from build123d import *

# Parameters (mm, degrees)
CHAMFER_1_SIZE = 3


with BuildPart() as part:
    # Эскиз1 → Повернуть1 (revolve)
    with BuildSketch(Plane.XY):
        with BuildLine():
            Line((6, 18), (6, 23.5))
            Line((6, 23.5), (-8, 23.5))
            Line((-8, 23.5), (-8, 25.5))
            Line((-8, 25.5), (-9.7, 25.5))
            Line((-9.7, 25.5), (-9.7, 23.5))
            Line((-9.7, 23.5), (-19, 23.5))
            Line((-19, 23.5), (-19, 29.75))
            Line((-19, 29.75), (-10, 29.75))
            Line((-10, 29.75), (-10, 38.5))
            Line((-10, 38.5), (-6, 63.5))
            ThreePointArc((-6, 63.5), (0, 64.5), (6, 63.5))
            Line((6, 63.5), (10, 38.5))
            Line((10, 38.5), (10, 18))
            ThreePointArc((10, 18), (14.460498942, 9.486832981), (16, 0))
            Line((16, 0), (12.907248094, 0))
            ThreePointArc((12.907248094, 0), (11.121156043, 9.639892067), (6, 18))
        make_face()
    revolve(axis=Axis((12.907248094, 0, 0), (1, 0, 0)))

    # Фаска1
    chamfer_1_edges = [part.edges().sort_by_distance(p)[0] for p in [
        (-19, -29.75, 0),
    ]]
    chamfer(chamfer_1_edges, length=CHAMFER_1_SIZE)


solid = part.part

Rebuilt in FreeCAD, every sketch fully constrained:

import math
import FreeCAD as App
import Part
import Sketcher
Q = App.Units.Quantity


def edges_at(feature, points):
    """Names of the edges that pass closest to the given points."""
    edges = feature.Shape.Edges
    near = lambda p: min(range(len(edges)), key=lambda i: edges[i].distToShape(Part.Vertex(*p))[0])
    return sorted({f"Edge{near(p) + 1}" for p in points})

doc = App.newDocument("Part")
body = doc.addObject("PartDesign::Body", "Body")

# Sketch on XY plane
sketch1 = doc.addObject("Sketcher::SketchObject", "Sketch")
body.addObject(sketch1)
sketch1.AttachmentSupport = (doc.XY_Plane, [""])
sketch1.MapMode = "FlatFace"
sketch1.addGeometry([
    Part.LineSegment(App.Vector(6, 23.5, 0), App.Vector(6, 18, 0)),  # 0
    Part.ArcOfCircle(Part.Circle(App.Vector(-14, 0, 0), App.Vector(0, 0, 1), 26.9), math.radians(0), math.radians(42)),  # 1
    Part.LineSegment(App.Vector(12.9, 0, 0), App.Vector(16, 0, 0)),  # 2
    Part.ArcOfCircle(Part.Circle(App.Vector(-14, 0, 0), App.Vector(0, 0, 1), 30), math.radians(0), math.radians(37)),  # 3
    Part.LineSegment(App.Vector(10, 18, 0), App.Vector(10, 38.5, 0)),  # 4
    Part.LineSegment(App.Vector(10, 38.5, 0), App.Vector(6, 63.5, 0)),  # 5
    Part.ArcOfCircle(Part.Circle(App.Vector(0, 46, 0), App.Vector(0, 0, 1), 18.5), math.radians(71), math.radians(109)),  # 6
    Part.LineSegment(App.Vector(-6, 63.5, 0), App.Vector(-10, 38.5, 0)),  # 7
    Part.LineSegment(App.Vector(-10, 38.5, 0), App.Vector(-10, 29.8, 0)),  # 8
    Part.LineSegment(App.Vector(-10, 29.8, 0), App.Vector(-19, 29.8, 0)),  # 9
    Part.LineSegment(App.Vector(-19, 29.8, 0), App.Vector(-19, 23.5, 0)),  # 10
    Part.LineSegment(App.Vector(-19, 23.5, 0), App.Vector(-9.7, 23.5, 0)),  # 11
    Part.LineSegment(App.Vector(-9.7, 23.5, 0), App.Vector(-9.7, 25.5, 0)),  # 12
    Part.LineSegment(App.Vector(-9.7, 25.5, 0), App.Vector(-8, 25.5, 0)),  # 13
    Part.LineSegment(App.Vector(-8, 25.5, 0), App.Vector(-8, 23.5, 0)),  # 14
    Part.LineSegment(App.Vector(-8, 23.5, 0), App.Vector(6, 23.5, 0)),  # 15
], False)
sketch1.addConstraint([
    Sketcher.Constraint("Coincident", 0, 2, 1, 2),
    Sketcher.Constraint("Coincident", 1, 1, 2, 1),
    Sketcher.Constraint("Coincident", 2, 2, 3, 1),
    Sketcher.Constraint("Coincident", 3, 2, 4, 1),
    Sketcher.Constraint("Coincident", 4, 2, 5, 1),
    Sketcher.Constraint("Coincident", 5, 2, 6, 1),
    Sketcher.Constraint("Coincident", 6, 2, 7, 1),
    Sketcher.Constraint("Coincident", 7, 2, 8, 1),
    Sketcher.Constraint("Coincident", 8, 2, 9, 1),
    Sketcher.Constraint("Coincident", 9, 2, 10, 1),
    Sketcher.Constraint("Coincident", 10, 2, 11, 1),
    Sketcher.Constraint("Coincident", 11, 2, 12, 1),
    Sketcher.Constraint("Coincident", 12, 2, 13, 1),
    Sketcher.Constraint("Coincident", 13, 2, 14, 1),
    Sketcher.Constraint("Coincident", 14, 2, 15, 1),
    Sketcher.Constraint("Coincident", 15, 2, 0, 1),
    Sketcher.Constraint("Vertical", 0),
    Sketcher.Constraint("Horizontal", 2),
    Sketcher.Constraint("Vertical", 4),
    Sketcher.Constraint("Vertical", 8),
    Sketcher.Constraint("Horizontal", 9),
    Sketcher.Constraint("Vertical", 10),
    Sketcher.Constraint("Horizontal", 11),
    Sketcher.Constraint("Vertical", 12),
    Sketcher.Constraint("Horizontal", 13),
    Sketcher.Constraint("Vertical", 14),
    Sketcher.Constraint("Horizontal", 15),
    Sketcher.Constraint("Coincident", 3, 3, 1, 3),
    Sketcher.Constraint("Symmetric", 5, 2, 6, 2, -2),
    Sketcher.Constraint("Symmetric", 4, 2, 7, 2, -2),
    Sketcher.Constraint("PointOnObject", 1, 3, -1),
    Sketcher.Constraint("PointOnObject", 1, 1, -1),
    Sketcher.Constraint("Horizontal", 0, 2, 3, 2),
    Sketcher.Constraint("Horizontal", 11, 2, 14, 2),
    Sketcher.Constraint("Vertical", 0, 2, 5, 2),
    Sketcher.Constraint("Radius", 3, Q("30 mm")),
    Sketcher.Constraint("Radius", 6, Q("18.5 mm")),
    Sketcher.Constraint("DistanceX", 9, 2, 9, 1, Q("9 mm")),
    Sketcher.Constraint("DistanceX", 15, 1, 15, 2, Q("14 mm")),
    Sketcher.Constraint("DistanceY", 12, 1, 12, 2, Q("2 mm")),
    Sketcher.Constraint("DistanceX", 11, 1, 11, 2, Q("9.3 mm")),
    Sketcher.Constraint("DistanceX", 13, 1, 13, 2, Q("1.7 mm")),
    Sketcher.Constraint("DistanceY", 0, 2, 0, 1, Q("5.5 mm")),
    Sketcher.Constraint("DistanceY", 4, 1, 4, 2, Q("20.5 mm")),
    Sketcher.Constraint("DistanceX", 1, 3, -1, 1, Q("14 mm")),
    Sketcher.Constraint("DistanceY", -1, 1, 6, 3, Q("46 mm")),
    Sketcher.Constraint("DistanceX", -1, 1, 0, 2, Q("6 mm")),
    Sketcher.Constraint("DistanceY", 8, 2, 8, 1, Q("8.75 mm")),
])
revolution = doc.addObject("PartDesign::Revolution", "Revolution")
body.addObject(revolution)
revolution.Profile = sketch1
revolution.ReferenceAxis = (sketch1, ["H_Axis"])
revolution.Angle = 360
doc.recompute()

chamfer = doc.addObject("PartDesign::Chamfer", "Chamfer")
body.addObject(chamfer)
chamfer.Base = (revolution, edges_at(revolution, [(-19, -29.75, 0)]))
chamfer.Size = 3

doc.recompute()
